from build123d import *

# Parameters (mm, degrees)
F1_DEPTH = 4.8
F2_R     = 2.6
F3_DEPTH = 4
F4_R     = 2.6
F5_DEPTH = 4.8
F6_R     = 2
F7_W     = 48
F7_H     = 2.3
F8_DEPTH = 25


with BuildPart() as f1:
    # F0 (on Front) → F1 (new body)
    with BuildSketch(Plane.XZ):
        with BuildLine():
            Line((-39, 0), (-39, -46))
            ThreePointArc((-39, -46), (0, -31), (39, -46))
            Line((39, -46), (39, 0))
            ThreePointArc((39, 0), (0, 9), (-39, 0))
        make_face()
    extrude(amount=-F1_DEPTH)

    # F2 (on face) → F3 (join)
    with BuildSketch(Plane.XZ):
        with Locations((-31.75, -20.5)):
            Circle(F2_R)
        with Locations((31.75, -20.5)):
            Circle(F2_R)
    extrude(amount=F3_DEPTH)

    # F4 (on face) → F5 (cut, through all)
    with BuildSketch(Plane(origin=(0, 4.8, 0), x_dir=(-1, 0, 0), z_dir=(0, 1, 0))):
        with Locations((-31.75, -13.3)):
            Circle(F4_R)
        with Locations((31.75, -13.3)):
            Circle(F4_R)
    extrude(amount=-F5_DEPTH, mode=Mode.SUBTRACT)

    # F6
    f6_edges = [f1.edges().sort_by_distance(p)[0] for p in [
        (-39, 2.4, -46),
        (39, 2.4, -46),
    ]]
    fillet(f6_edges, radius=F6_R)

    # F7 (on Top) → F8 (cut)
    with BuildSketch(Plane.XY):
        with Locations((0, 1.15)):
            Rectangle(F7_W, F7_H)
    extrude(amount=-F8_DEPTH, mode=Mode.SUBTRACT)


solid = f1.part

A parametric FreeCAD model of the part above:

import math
import FreeCAD as App
import Part
import Sketcher


def edges_at(feature, points):
    """Names of the edges that pass closest to the given points."""
    edges = feature.Shape.Edges
    near = lambda p: min(range(len(edges)), key=lambda i: edges[i].distToShape(Part.Vertex(*p))[0])
    return sorted({f"Edge{near(p) + 1}" for p in points})

doc = App.newDocument("Part")
body = doc.addObject("PartDesign::Body", "Body")

sketch1 = body.newObject("Sketcher::SketchObject", "Sketch")
sketch1.AttachmentSupport = (doc.getObject("XZ_Plane"), [""])
sketch1.MapMode = "FlatFace"
sketch1.addGeometry(Part.LineSegment(App.Vector(-39, 0, 0), App.Vector(-39, -46, 0)), False)
sketch1.addGeometry(Part.ArcOfCircle(Part.Circle(App.Vector(0, -89, 0), App.Vector(0, 0, 1), 58), math.radians(48), math.radians(132)), False)
sketch1.addGeometry(Part.LineSegment(App.Vector(39, -46, 0), App.Vector(39, 0, 0)), False)
sketch1.addGeometry(Part.ArcOfCircle(Part.Circle(App.Vector(0, -80, 0), App.Vector(0, 0, 1), 89), math.radians(64), math.radians(116)), False)
sketch1.addConstraint(Sketcher.Constraint("Coincident", 0, 2, 1, 2))
sketch1.addConstraint(Sketcher.Constraint("Coincident", 1, 1, 2, 1))
sketch1.addConstraint(Sketcher.Constraint("Coincident", 2, 2, 3, 1))
sketch1.addConstraint(Sketcher.Constraint("Coincident", 3, 2, 0, 1))
sketch1.addConstraint(Sketcher.Constraint("Vertical", 0))
sketch1.addConstraint(Sketcher.Constraint("Vertical", 2))
sketch1.addConstraint(Sketcher.Constraint("Symmetric", 2, 2, 3, 2, -1, 1))
sketch1.addConstraint(Sketcher.Constraint("PointOnObject", 1, 3, -2))
sketch1.addConstraint(Sketcher.Constraint("PointOnObject", 3, 3, -2))
sketch1.addConstraint(Sketcher.Constraint("Radius", 3, 89.0))
sketch1.addConstraint(Sketcher.Constraint("Radius", 1, 58.2))
sketch1.addConstraint(Sketcher.Constraint("DistanceY", 0, 2, 0, 1, 46.0))
sketch1.addConstraint(Sketcher.Constraint("DistanceY", 3, 3, -1, 1, 80.0))
pad1 = body.newObject("PartDesign::Pad", "Pad")
pad1.Profile = sketch1
pad1.Length = 4.8
pad1.Reversed = True

sketch2 = body.newObject("Sketcher::SketchObject", "Sketch001")
sketch2.AttachmentSupport = (doc.getObject("XZ_Plane"), [""])
sketch2.MapMode = "FlatFace"
sketch2.addGeometry(Part.Circle(App.Vector(-31.8, -20.5, 0), App.Vector(0, 0, 1), 2.6), False)
sketch2.addGeometry(Part.Circle(App.Vector(31.8, -20.5, 0), App.Vector(0, 0, 1), 2.6), False)
sketch2.addConstraint(Sketcher.Constraint("Equal", 0, 1))
sketch2.addConstraint(Sketcher.Constraint("Symmetric", 0, 3, 1, 3, -2))
sketch2.addConstraint(Sketcher.Constraint("Diameter", 0, 5.2))
sketch2.addConstraint(Sketcher.Constraint("DistanceY", 0, 3, -1, 1, 20.5))
sketch2.addConstraint(Sketcher.Constraint("DistanceX", 0, 3, 1, 3, 63.5))
pad2 = body.newObject("PartDesign::Pad", "Pad001")
pad2.Profile = sketch2
pad2.Length = 4

sketch3 = body.newObject("Sketcher::SketchObject", "Sketch002")
sketch3.AttachmentSupport = (doc.getObject("XZ_Plane"), [""])
sketch3.MapMode = "FlatFace"
sketch3.AttachmentOffset = App.Placement(App.Vector(0, 0, -4.8), App.Rotation())
sketch3.addGeometry(Part.Circle(App.Vector(31.8, -13.3, 0), App.Vector(0, 0, 1), 2.6), False)
sketch3.addGeometry(Part.Circle(App.Vector(-31.8, -13.3, 0), App.Vector(0, 0, 1), 2.6), False)
sketch3.addConstraint(Sketcher.Constraint("Equal", 0, 1))
sketch3.addConstraint(Sketcher.Constraint("Symmetric", 0, 3, 1, 3, -2))
sketch3.addConstraint(Sketcher.Constraint("Diameter", 0, 5.2))
sketch3.addConstraint(Sketcher.Constraint("DistanceY", 0, 3, -1, 1, 13.3))
sketch3.addConstraint(Sketcher.Constraint("DistanceX", 1, 3, 0, 3, 63.5))
pocket1 = body.newObject("PartDesign::Pocket", "Pocket")
pocket1.Profile = sketch3
pocket1.Type = "ThroughAll"
pocket1.Reversed = True
doc.recompute()

fillet = body.newObject("PartDesign::Fillet", "Fillet")
fillet.Base = (pocket1, edges_at(pocket1, [(-39, 2.4, -46), (39, 2.4, -46)]))
fillet.Radius = 2

sketch4 = body.newObject("Sketcher::SketchObject", "Sketch003")
sketch4.AttachmentSupport = (doc.getObject("XY_Plane"), [""])
sketch4.MapMode = "FlatFace"
sketch4.addGeometry(Part.LineSegment(App.Vector(-24, 2.3, 0), App.Vector(-24, 0, 0)), False)
sketch4.addGeometry(Part.LineSegment(App.Vector(-24, 0, 0), App.Vector(24, 0, 0)), False)
sketch4.addGeometry(Part.LineSegment(App.Vector(24, 0, 0), App.Vector(24, 2.3, 0)), False)
sketch4.addGeometry(Part.LineSegment(App.Vector(24, 2.3, 0), App.Vector(-24, 2.3, 0)), False)
sketch4.addConstraint(Sketcher.Constraint("Coincident", 0, 2, 1, 1))
sketch4.addConstraint(Sketcher.Constraint("Coincident", 1, 2, 2, 1))
sketch4.addConstraint(Sketcher.Constraint("Coincident", 2, 2, 3, 1))
sketch4.addConstraint(Sketcher.Constraint("Coincident", 3, 2, 0, 1))
sketch4.addConstraint(Sketcher.Constraint("Vertical", 0))
sketch4.addConstraint(Sketcher.Constraint("Horizontal", 1))
sketch4.addConstraint(Sketcher.Constraint("Vertical", 2))
sketch4.addConstraint(Sketcher.Constraint("Horizontal", 3))
sketch4.addConstraint(Sketcher.Constraint("Symmetric", 0, 2, 1, 2, -1, 1))
sketch4.addConstraint(Sketcher.Constraint("DistanceX", 1, 1, 1, 2, 48.0))
sketch4.addConstraint(Sketcher.Constraint("DistanceY", 0, 2, 0, 1, 2.3))
pocket2 = body.newObject("PartDesign::Pocket", "Pocket001")
pocket2.Profile = sketch4
pocket2.Length = 25

doc.recompute()
